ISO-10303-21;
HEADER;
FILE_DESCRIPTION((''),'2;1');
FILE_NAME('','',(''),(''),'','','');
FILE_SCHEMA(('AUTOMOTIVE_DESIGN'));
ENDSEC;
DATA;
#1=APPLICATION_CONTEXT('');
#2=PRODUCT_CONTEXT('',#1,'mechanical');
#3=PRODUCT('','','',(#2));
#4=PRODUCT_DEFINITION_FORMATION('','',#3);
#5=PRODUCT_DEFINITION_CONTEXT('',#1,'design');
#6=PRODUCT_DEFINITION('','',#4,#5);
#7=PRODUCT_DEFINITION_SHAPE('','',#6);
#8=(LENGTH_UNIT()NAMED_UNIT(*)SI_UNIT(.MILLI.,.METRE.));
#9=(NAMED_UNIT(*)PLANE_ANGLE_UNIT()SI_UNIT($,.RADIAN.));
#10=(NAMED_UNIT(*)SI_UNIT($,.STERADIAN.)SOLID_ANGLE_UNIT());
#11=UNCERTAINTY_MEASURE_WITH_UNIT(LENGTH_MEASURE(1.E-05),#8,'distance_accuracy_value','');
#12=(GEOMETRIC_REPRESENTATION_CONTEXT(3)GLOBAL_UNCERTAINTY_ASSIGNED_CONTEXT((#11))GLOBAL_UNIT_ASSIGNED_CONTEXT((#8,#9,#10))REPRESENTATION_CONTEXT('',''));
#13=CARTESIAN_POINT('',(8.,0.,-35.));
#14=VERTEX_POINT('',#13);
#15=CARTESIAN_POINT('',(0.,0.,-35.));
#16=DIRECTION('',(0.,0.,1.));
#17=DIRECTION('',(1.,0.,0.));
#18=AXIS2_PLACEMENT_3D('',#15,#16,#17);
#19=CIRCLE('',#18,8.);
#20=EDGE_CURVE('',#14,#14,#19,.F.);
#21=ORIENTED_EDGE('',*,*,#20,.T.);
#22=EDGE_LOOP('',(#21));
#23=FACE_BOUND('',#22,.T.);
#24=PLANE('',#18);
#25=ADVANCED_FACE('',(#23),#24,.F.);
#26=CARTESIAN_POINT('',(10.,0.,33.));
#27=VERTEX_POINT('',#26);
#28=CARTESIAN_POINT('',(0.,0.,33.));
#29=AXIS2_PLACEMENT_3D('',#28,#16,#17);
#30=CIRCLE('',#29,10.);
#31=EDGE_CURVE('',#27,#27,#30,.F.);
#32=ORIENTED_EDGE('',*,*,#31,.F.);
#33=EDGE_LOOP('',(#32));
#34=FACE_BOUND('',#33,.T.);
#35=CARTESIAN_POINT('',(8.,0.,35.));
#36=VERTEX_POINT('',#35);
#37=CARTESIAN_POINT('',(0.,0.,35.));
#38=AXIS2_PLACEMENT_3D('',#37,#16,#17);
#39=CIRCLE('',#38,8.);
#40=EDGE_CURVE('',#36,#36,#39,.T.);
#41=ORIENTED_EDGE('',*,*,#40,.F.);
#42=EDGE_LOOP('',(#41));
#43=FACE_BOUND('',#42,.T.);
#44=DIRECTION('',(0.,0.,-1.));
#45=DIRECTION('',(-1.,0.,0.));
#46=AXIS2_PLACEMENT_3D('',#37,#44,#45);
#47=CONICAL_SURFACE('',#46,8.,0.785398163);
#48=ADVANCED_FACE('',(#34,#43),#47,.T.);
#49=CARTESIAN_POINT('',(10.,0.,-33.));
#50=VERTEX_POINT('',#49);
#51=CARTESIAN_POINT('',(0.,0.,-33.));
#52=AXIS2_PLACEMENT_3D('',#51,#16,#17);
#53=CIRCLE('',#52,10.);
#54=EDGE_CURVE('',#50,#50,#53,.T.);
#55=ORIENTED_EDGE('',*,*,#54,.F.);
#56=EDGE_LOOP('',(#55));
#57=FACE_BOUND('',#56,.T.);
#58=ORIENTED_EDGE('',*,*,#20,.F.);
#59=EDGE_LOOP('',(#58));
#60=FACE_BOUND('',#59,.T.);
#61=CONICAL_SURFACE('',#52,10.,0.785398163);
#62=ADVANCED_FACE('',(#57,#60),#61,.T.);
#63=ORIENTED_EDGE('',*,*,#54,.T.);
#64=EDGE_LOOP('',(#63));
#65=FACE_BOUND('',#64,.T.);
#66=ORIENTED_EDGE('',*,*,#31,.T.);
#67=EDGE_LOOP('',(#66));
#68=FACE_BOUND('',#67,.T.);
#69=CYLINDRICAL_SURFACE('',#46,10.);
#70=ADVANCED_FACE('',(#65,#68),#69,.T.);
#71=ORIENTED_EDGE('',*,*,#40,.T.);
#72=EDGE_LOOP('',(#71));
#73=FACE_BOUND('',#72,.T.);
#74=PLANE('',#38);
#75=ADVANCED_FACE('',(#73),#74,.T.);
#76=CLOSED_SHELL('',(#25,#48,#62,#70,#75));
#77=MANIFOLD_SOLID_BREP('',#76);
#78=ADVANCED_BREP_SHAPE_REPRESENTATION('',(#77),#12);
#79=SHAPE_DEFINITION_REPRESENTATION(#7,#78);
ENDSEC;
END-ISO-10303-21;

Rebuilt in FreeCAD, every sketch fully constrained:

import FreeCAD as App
import Part
import Sketcher

V = App.Vector
Q = App.Units.Quantity


def edges_at(feature, points):
    """Names of the edges that pass closest to the given points."""
    edges = feature.Shape.Edges
    near = lambda p: min(range(len(edges)), key=lambda i: edges[i].distToShape(Part.Vertex(*p))[0])
    return sorted({f"Edge{near(p) + 1}" for p in points})

doc = App.newDocument("Part")
body = doc.addObject("PartDesign::Body", "Body")

# Sketch on XY plane
sketch1 = body.newObject("Sketcher::SketchObject", "Sketch")
sketch1.AttachmentSupport = (doc.getObject("XY_Plane"), [""])
sketch1.MapMode = "FlatFace"
sketch1.addGeometry(Part.Circle(V(0, 0, 0), V(0, 0, 1), 10), False)
sketch1.addConstraint(Sketcher.Constraint("Coincident", 0, 3, -1, 1))
sketch1.addConstraint(Sketcher.Constraint("Diameter", 0, Q("20 mm")))
pad1 = body.newObject("PartDesign::Pad", "Pad")
pad1.Profile = sketch1
pad1.Length = 70
pad1.Midplane = True
doc.recompute()

chamfer = body.newObject("PartDesign::Chamfer", "Chamfer")
chamfer.Base = (pad1, edges_at(pad1, [(-10, 0, -35), (-10, 0, 35)]))
chamfer.Size = 2

doc.recompute()
